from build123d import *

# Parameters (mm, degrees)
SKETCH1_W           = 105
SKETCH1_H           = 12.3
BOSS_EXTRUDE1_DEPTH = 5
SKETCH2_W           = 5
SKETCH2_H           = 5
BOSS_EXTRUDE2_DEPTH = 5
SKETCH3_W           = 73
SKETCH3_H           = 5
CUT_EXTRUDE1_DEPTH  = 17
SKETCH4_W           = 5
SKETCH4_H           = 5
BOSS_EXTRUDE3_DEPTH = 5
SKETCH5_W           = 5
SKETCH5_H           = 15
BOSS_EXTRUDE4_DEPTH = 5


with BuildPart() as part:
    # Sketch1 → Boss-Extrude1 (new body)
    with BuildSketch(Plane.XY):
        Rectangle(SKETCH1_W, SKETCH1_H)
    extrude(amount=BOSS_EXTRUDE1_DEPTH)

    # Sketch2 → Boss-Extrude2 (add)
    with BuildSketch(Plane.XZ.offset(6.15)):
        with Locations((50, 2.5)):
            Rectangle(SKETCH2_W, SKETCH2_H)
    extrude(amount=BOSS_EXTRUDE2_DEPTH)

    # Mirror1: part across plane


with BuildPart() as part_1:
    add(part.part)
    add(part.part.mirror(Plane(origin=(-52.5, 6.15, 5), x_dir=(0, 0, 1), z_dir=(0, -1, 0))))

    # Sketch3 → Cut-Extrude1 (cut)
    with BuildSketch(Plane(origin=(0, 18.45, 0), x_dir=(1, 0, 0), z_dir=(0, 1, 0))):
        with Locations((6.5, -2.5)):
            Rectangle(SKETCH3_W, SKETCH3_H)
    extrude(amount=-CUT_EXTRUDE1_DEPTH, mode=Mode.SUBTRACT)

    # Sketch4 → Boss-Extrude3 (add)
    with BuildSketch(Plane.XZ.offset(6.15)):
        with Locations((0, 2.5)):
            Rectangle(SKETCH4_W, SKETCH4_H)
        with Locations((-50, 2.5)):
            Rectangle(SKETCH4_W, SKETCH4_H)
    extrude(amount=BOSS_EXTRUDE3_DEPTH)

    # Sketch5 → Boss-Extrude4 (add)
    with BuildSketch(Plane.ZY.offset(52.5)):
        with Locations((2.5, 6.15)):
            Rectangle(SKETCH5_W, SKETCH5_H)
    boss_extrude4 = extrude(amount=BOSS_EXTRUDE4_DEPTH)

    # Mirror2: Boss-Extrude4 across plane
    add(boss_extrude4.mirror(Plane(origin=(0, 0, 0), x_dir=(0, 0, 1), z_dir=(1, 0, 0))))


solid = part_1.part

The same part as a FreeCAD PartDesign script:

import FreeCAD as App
import Part
import Sketcher
Q = App.Units.Quantity


def add_polygon(sketch, points):
    """Adds a closed chain of lines whose ends are joined by coincident constraints."""
    first, n = sketch.GeometryCount, len(points)
    for a, b in zip(points, points[1:] + points[:1]):
        sketch.addGeometry(Part.LineSegment(App.Vector(*a, 0), App.Vector(*b, 0)), False)
    for i in range(n):
        sketch.addConstraint(Sketcher.Constraint("Coincident", first + i, 2, first + (i + 1) % n, 1))

doc = App.newDocument("Part")
body = doc.addObject("PartDesign::Body", "Body")

sketch1 = body.newObject("Sketcher::SketchObject", "Sketch")
sketch1.AttachmentSupport = (doc.getObject("XY_Plane"), [""])
sketch1.MapMode = "FlatFace"
add_polygon(sketch1, [(-52, 6), (-52, -6), (52, -6), (52, 6)])
sketch1.addConstraint([
    Sketcher.Constraint("Vertical", 0),
    Sketcher.Constraint("Horizontal", 1),
    Sketcher.Constraint("Vertical", 2),
    Sketcher.Constraint("Horizontal", 3),
    Sketcher.Constraint("Symmetric", 0, 2, 2, 2, -1, 1),
    Sketcher.Constraint("DistanceX", 1, 1, 1, 2, Q("105 mm")),
    Sketcher.Constraint("DistanceY", 0, 2, 0, 1, Q("12.3 mm")),
])
pad1 = body.newObject("PartDesign::Pad", "Pad")
pad1.Profile = sketch1
pad1.Length = 5

sketch2 = body.newObject("Sketcher::SketchObject", "Sketch001")
sketch2.AttachmentSupport = (doc.getObject("XZ_Plane"), [""])
sketch2.MapMode = "FlatFace"
sketch2.AttachmentOffset = App.Placement(App.Vector(0, 0, 6.15), App.Rotation())
add_polygon(sketch2, [(48, 5), (48, 0), (52, 0), (52, 5)])
sketch2.addConstraint([
    Sketcher.Constraint("Vertical", 0),
    Sketcher.Constraint("Horizontal", 1),
    Sketcher.Constraint("Vertical", 2),
    Sketcher.Constraint("Horizontal", 3),
    Sketcher.Constraint("PointOnObject", 0, 2, -1),
    Sketcher.Constraint("Equal", 3, 0),
    Sketcher.Constraint("DistanceX", 1, 1, 1, 2, Q("5 mm")),
    Sketcher.Constraint("DistanceX", -1, 1, 0, 2, Q("47.5 mm")),
])
pad2 = body.newObject("PartDesign::Pad", "Pad001")
pad2.Profile = sketch2
pad2.Length = 5
body2 = doc.addObject("PartDesign::Body", "Body001")
doc.recompute()

body2.BaseFeature = body
doc.recompute()

mirroring = doc.addObject("Part::Mirroring", "Mirroring")
mirroring.Source = body
mirroring.Base = App.Vector(-52.5, 6.15, 5)
mirroring.Normal = App.Vector(0, -1, 0)
body3 = doc.addObject("PartDesign::Body", "Body002")
body3.BaseFeature = mirroring
boolean = body2.newObject("PartDesign::Boolean", "Boolean")
boolean.Type = "Fuse"
boolean.addObjects([body3])
doc.recompute()

sketch3 = body2.newObject("Sketcher::SketchObject", "Sketch002")
sketch3.AttachmentSupport = (doc.getObject("XZ_Plane001"), [""])
sketch3.MapMode = "FlatFace"
sketch3.AttachmentOffset = App.Placement(App.Vector(0, 0, -18.45), App.Rotation())
add_polygon(sketch3, [(-30, 0), (-30, 5), (43, 5), (43, 0)])
sketch3.addConstraint([
    Sketcher.Constraint("Vertical", 0),
    Sketcher.Constraint("Horizontal", 1),
    Sketcher.Constraint("Vertical", 2),
    Sketcher.Constraint("Horizontal", 3),
    Sketcher.Constraint("PointOnObject", 2, 2, -1),
    Sketcher.Constraint("DistanceX", 1, 1, 1, 2, Q("73 mm")),
    Sketcher.Constraint("DistanceY", 0, 1, 0, 2, Q("5 mm")),
    Sketcher.Constraint("DistanceX", 0, 2, -1, 1, Q("30 mm")),
])
pocket1 = body2.newObject("PartDesign::Pocket", "Pocket")
pocket1.Profile = sketch3
pocket1.Length = 17
pocket1.Reversed = True

sketch4 = body2.newObject("Sketcher::SketchObject", "Sketch003")
sketch4.AttachmentSupport = (doc.getObject("XZ_Plane001"), [""])
sketch4.MapMode = "FlatFace"
sketch4.AttachmentOffset = App.Placement(App.Vector(0, 0, 6.15), App.Rotation())
add_polygon(sketch4, [(-2, 5), (-2, 0), (2, 0), (2, 5)])
add_polygon(sketch4, [(-52, 5), (-52, 0), (-48, 0), (-48, 5)])
sketch4.addConstraint([
    Sketcher.Constraint("Vertical", 0),
    Sketcher.Constraint("Horizontal", 1),
    Sketcher.Constraint("Vertical", 2),
    Sketcher.Constraint("Horizontal", 3),
    Sketcher.Constraint("Vertical", 4),
    Sketcher.Constraint("Horizontal", 5),
    Sketcher.Constraint("Vertical", 6),
    Sketcher.Constraint("Horizontal", 7),
    Sketcher.Constraint("Symmetric", 0, 2, 1, 2, -1, 1),
    Sketcher.Constraint("PointOnObject", 4, 2, -1),
    Sketcher.Constraint("Horizontal", 3, 2, 6, 2),
    Sketcher.Constraint("Equal", 3, 5),
    Sketcher.Constraint("Equal", 7, 0),
    Sketcher.Constraint("DistanceX", 1, 1, 1, 2, Q("5 mm")),
    Sketcher.Constraint("DistanceX", 4, 2, 0, 2, Q("50 mm")),
])
pad3 = body2.newObject("PartDesign::Pad", "Pad002")
pad3.Profile = sketch4
pad3.Length = 5

sketch5 = body2.newObject("Sketcher::SketchObject", "Sketch004")
sketch5.AttachmentSupport = (doc.getObject("YZ_Plane001"), [""])
sketch5.MapMode = "FlatFace"
sketch5.AttachmentOffset = App.Placement(App.Vector(0, 0, -52.5), App.Rotation())
add_polygon(sketch5, [(14, 0), (-1, 0), (-1, 5), (14, 5)])
sketch5.addConstraint([
    Sketcher.Constraint("Horizontal", 0),
    Sketcher.Constraint("Vertical", 1),
    Sketcher.Constraint("Horizontal", 2),
    Sketcher.Constraint("Vertical", 3),
    Sketcher.Constraint("PointOnObject", 0, 2, -1),
    Sketcher.Constraint("DistanceX", 0, 2, 0, 1, Q("15 mm")),
    Sketcher.Constraint("DistanceY", 1, 1, 1, 2, Q("5 mm")),
    Sketcher.Constraint("DistanceX", 0, 2, -1, 1, Q("1.35 mm")),
])
pad4 = body2.newObject("PartDesign::Pad", "Pad003")
pad4.Profile = sketch5
pad4.Length = 5
pad4.Reversed = True
doc.recompute()

mirrored = body2.newObject("PartDesign::Mirrored", "Mirrored")
mirrored.Originals = [pad4]
mirrored.MirrorPlane = (doc.getObject("YZ_Plane001"), [""])
body2.Tip = mirrored
mirroring.Visibility = False

doc.recompute()
